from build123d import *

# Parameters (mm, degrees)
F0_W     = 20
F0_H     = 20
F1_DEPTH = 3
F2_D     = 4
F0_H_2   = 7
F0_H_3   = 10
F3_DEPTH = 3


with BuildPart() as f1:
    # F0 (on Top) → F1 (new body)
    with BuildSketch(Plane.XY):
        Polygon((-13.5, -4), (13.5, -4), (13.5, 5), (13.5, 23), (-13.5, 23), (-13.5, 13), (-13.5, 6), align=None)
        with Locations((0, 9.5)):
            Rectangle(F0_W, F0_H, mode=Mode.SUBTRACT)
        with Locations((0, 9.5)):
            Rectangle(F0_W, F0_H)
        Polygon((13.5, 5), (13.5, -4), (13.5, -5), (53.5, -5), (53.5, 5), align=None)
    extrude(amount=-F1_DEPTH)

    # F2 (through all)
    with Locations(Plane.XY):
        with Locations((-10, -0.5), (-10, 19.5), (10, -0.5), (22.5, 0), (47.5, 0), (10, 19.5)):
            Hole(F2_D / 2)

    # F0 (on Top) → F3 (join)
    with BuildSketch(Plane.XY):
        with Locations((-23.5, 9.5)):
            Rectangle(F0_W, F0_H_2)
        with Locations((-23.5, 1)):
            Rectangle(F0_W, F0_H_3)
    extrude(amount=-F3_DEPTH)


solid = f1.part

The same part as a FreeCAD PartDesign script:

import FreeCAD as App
import Part
import Sketcher
Q = App.Units.Quantity

doc = App.newDocument("Part")
body = doc.addObject("PartDesign::Body", "Body")

sketch1 = body.newObject("Sketcher::SketchObject", "Sketch")
sketch1.AttachmentSupport = (doc.getObject("XY_Plane"), [""])
sketch1.MapMode = "FlatFace"
sketch1.addGeometry([
    Part.LineSegment(App.Vector(-13.5, 23, 0), App.Vector(-13.5, -4, 0)),
    Part.LineSegment(App.Vector(-13.5, -4, 0), App.Vector(13.5, -4, 0)),
    Part.LineSegment(App.Vector(13.5, -4, 0), App.Vector(13.5, -5, 0)),
    Part.LineSegment(App.Vector(13.5, -5, 0), App.Vector(53.5, -5, 0)),
    Part.LineSegment(App.Vector(53.5, -5, 0), App.Vector(53.5, 5, 0)),
    Part.LineSegment(App.Vector(53.5, 5, 0), App.Vector(13.5, 5, 0)),
    Part.LineSegment(App.Vector(13.5, 5, 0), App.Vector(13.5, 23, 0)),
    Part.LineSegment(App.Vector(13.5, 23, 0), App.Vector(-13.5, 23, 0)),
], False)
sketch1.addConstraint([
    Sketcher.Constraint("Coincident", 0, 2, 1, 1),
    Sketcher.Constraint("Coincident", 1, 2, 2, 1),
    Sketcher.Constraint("Coincident", 2, 2, 3, 1),
    Sketcher.Constraint("Coincident", 3, 2, 4, 1),
    Sketcher.Constraint("Coincident", 4, 2, 5, 1),
    Sketcher.Constraint("Coincident", 5, 2, 6, 1),
    Sketcher.Constraint("Coincident", 6, 2, 7, 1),
    Sketcher.Constraint("Coincident", 7, 2, 0, 1),
    Sketcher.Constraint("Vertical", 0),
    Sketcher.Constraint("Horizontal", 1),
    Sketcher.Constraint("Vertical", 2),
    Sketcher.Constraint("Horizontal", 3),
    Sketcher.Constraint("Vertical", 4),
    Sketcher.Constraint("Horizontal", 5),
    Sketcher.Constraint("Vertical", 6),
    Sketcher.Constraint("Horizontal", 7),
    Sketcher.Constraint("Symmetric", 2, 2, 5, 2, -1),
    Sketcher.Constraint("Equal", 7, 0),
    Sketcher.Constraint("DistanceX", 1, 1, 1, 2, Q("27 mm")),
    Sketcher.Constraint("DistanceX", 3, 1, 3, 2, Q("40 mm")),
    Sketcher.Constraint("DistanceY", 2, 2, 2, 1, Q("1 mm")),
    Sketcher.Constraint("DistanceY", 4, 1, 4, 2, Q("10 mm")),
    Sketcher.Constraint("DistanceX", 0, 2, -1, 1, Q("13.5 mm")),
])
pad1 = body.newObject("PartDesign::Pad", "Pad")
pad1.Profile = sketch1
pad1.Length = 3
pad1.Reversed = True

sketch2 = body.newObject("Sketcher::SketchObject", "Sketch001")
sketch2.AttachmentSupport = (doc.getObject("XY_Plane"), [""])
sketch2.MapMode = "FlatFace"
sketch2.addGeometry([
    Part.Circle(App.Vector(-10, -0.5, 0), App.Vector(0, 0, 1), 2),
    Part.Circle(App.Vector(-10, 19.5, 0), App.Vector(0, 0, 1), 2),
    Part.Circle(App.Vector(10, -0.5, 0), App.Vector(0, 0, 1), 2),
    Part.Circle(App.Vector(22.5, 0, 0), App.Vector(0, 0, 1), 2),
    Part.Circle(App.Vector(47.5, 0, 0), App.Vector(0, 0, 1), 2),
    Part.Circle(App.Vector(10, 19.5, 0), App.Vector(0, 0, 1), 2),
], False)
sketch2.addConstraint([
    Sketcher.Constraint("Equal", 0, 1),
    Sketcher.Constraint("Equal", 1, 2),
    Sketcher.Constraint("Equal", 2, 3),
    Sketcher.Constraint("Equal", 3, 4),
    Sketcher.Constraint("Equal", 4, 5),
    Sketcher.Constraint("Symmetric", 0, 3, 2, 3, -2),
    Sketcher.Constraint("Symmetric", 1, 3, 5, 3, -2),
    Sketcher.Constraint("PointOnObject", 3, 3, -1),
    Sketcher.Constraint("PointOnObject", 4, 3, -1),
    Sketcher.Constraint("Vertical", 0, 3, 1, 3),
    Sketcher.Constraint("Diameter", 0, Q("4 mm")),
    Sketcher.Constraint("DistanceX", 0, 3, -1, 1, Q("10 mm")),
    Sketcher.Constraint("DistanceY", 0, 3, 1, 3, Q("20 mm")),
    Sketcher.Constraint("DistanceX", 3, 3, 4, 3, Q("25 mm")),
    Sketcher.Constraint("DistanceY", 0, 3, -1, 1, Q("0.5 mm")),
    Sketcher.Constraint("DistanceX", -1, 1, 3, 3, Q("22.5 mm")),
])
doc.recompute()
hole = body.newObject("PartDesign::Hole", "Hole")
hole.Profile = sketch2
hole.ThreadType = "None"
hole.Diameter = 4
hole.DepthType = "ThroughAll"

sketch3 = body.newObject("Sketcher::SketchObject", "Sketch002")
sketch3.AttachmentSupport = (doc.getObject("XY_Plane"), [""])
sketch3.MapMode = "FlatFace"
sketch3.addGeometry([
    Part.LineSegment(App.Vector(-34, 13, 0), App.Vector(-34, -4, 0)),
    Part.LineSegment(App.Vector(-34, -4, 0), App.Vector(-14, -4, 0)),
    Part.LineSegment(App.Vector(-14, -4, 0), App.Vector(-14, 13, 0)),
    Part.LineSegment(App.Vector(-14, 13, 0), App.Vector(-34, 13, 0)),
], False)
sketch3.addConstraint([
    Sketcher.Constraint("Coincident", 0, 2, 1, 1),
    Sketcher.Constraint("Coincident", 1, 2, 2, 1),
    Sketcher.Constraint("Coincident", 2, 2, 3, 1),
    Sketcher.Constraint("Coincident", 3, 2, 0, 1),
    Sketcher.Constraint("Vertical", 0),
    Sketcher.Constraint("Horizontal", 1),
    Sketcher.Constraint("Vertical", 2),
    Sketcher.Constraint("Horizontal", 3),
    Sketcher.Constraint("DistanceX", 1, 1, 1, 2, Q("20 mm")),
    Sketcher.Constraint("DistanceY", 0, 2, 0, 1, Q("17 mm")),
    Sketcher.Constraint("DistanceY", 0, 2, -1, 1, Q("4 mm")),
    Sketcher.Constraint("DistanceX", 0, 2, -1, 1, Q("33.5 mm")),
])
pad2 = body.newObject("PartDesign::Pad", "Pad001")
pad2.Profile = sketch3
pad2.Length = 3
pad2.Reversed = True

doc.recompute()
